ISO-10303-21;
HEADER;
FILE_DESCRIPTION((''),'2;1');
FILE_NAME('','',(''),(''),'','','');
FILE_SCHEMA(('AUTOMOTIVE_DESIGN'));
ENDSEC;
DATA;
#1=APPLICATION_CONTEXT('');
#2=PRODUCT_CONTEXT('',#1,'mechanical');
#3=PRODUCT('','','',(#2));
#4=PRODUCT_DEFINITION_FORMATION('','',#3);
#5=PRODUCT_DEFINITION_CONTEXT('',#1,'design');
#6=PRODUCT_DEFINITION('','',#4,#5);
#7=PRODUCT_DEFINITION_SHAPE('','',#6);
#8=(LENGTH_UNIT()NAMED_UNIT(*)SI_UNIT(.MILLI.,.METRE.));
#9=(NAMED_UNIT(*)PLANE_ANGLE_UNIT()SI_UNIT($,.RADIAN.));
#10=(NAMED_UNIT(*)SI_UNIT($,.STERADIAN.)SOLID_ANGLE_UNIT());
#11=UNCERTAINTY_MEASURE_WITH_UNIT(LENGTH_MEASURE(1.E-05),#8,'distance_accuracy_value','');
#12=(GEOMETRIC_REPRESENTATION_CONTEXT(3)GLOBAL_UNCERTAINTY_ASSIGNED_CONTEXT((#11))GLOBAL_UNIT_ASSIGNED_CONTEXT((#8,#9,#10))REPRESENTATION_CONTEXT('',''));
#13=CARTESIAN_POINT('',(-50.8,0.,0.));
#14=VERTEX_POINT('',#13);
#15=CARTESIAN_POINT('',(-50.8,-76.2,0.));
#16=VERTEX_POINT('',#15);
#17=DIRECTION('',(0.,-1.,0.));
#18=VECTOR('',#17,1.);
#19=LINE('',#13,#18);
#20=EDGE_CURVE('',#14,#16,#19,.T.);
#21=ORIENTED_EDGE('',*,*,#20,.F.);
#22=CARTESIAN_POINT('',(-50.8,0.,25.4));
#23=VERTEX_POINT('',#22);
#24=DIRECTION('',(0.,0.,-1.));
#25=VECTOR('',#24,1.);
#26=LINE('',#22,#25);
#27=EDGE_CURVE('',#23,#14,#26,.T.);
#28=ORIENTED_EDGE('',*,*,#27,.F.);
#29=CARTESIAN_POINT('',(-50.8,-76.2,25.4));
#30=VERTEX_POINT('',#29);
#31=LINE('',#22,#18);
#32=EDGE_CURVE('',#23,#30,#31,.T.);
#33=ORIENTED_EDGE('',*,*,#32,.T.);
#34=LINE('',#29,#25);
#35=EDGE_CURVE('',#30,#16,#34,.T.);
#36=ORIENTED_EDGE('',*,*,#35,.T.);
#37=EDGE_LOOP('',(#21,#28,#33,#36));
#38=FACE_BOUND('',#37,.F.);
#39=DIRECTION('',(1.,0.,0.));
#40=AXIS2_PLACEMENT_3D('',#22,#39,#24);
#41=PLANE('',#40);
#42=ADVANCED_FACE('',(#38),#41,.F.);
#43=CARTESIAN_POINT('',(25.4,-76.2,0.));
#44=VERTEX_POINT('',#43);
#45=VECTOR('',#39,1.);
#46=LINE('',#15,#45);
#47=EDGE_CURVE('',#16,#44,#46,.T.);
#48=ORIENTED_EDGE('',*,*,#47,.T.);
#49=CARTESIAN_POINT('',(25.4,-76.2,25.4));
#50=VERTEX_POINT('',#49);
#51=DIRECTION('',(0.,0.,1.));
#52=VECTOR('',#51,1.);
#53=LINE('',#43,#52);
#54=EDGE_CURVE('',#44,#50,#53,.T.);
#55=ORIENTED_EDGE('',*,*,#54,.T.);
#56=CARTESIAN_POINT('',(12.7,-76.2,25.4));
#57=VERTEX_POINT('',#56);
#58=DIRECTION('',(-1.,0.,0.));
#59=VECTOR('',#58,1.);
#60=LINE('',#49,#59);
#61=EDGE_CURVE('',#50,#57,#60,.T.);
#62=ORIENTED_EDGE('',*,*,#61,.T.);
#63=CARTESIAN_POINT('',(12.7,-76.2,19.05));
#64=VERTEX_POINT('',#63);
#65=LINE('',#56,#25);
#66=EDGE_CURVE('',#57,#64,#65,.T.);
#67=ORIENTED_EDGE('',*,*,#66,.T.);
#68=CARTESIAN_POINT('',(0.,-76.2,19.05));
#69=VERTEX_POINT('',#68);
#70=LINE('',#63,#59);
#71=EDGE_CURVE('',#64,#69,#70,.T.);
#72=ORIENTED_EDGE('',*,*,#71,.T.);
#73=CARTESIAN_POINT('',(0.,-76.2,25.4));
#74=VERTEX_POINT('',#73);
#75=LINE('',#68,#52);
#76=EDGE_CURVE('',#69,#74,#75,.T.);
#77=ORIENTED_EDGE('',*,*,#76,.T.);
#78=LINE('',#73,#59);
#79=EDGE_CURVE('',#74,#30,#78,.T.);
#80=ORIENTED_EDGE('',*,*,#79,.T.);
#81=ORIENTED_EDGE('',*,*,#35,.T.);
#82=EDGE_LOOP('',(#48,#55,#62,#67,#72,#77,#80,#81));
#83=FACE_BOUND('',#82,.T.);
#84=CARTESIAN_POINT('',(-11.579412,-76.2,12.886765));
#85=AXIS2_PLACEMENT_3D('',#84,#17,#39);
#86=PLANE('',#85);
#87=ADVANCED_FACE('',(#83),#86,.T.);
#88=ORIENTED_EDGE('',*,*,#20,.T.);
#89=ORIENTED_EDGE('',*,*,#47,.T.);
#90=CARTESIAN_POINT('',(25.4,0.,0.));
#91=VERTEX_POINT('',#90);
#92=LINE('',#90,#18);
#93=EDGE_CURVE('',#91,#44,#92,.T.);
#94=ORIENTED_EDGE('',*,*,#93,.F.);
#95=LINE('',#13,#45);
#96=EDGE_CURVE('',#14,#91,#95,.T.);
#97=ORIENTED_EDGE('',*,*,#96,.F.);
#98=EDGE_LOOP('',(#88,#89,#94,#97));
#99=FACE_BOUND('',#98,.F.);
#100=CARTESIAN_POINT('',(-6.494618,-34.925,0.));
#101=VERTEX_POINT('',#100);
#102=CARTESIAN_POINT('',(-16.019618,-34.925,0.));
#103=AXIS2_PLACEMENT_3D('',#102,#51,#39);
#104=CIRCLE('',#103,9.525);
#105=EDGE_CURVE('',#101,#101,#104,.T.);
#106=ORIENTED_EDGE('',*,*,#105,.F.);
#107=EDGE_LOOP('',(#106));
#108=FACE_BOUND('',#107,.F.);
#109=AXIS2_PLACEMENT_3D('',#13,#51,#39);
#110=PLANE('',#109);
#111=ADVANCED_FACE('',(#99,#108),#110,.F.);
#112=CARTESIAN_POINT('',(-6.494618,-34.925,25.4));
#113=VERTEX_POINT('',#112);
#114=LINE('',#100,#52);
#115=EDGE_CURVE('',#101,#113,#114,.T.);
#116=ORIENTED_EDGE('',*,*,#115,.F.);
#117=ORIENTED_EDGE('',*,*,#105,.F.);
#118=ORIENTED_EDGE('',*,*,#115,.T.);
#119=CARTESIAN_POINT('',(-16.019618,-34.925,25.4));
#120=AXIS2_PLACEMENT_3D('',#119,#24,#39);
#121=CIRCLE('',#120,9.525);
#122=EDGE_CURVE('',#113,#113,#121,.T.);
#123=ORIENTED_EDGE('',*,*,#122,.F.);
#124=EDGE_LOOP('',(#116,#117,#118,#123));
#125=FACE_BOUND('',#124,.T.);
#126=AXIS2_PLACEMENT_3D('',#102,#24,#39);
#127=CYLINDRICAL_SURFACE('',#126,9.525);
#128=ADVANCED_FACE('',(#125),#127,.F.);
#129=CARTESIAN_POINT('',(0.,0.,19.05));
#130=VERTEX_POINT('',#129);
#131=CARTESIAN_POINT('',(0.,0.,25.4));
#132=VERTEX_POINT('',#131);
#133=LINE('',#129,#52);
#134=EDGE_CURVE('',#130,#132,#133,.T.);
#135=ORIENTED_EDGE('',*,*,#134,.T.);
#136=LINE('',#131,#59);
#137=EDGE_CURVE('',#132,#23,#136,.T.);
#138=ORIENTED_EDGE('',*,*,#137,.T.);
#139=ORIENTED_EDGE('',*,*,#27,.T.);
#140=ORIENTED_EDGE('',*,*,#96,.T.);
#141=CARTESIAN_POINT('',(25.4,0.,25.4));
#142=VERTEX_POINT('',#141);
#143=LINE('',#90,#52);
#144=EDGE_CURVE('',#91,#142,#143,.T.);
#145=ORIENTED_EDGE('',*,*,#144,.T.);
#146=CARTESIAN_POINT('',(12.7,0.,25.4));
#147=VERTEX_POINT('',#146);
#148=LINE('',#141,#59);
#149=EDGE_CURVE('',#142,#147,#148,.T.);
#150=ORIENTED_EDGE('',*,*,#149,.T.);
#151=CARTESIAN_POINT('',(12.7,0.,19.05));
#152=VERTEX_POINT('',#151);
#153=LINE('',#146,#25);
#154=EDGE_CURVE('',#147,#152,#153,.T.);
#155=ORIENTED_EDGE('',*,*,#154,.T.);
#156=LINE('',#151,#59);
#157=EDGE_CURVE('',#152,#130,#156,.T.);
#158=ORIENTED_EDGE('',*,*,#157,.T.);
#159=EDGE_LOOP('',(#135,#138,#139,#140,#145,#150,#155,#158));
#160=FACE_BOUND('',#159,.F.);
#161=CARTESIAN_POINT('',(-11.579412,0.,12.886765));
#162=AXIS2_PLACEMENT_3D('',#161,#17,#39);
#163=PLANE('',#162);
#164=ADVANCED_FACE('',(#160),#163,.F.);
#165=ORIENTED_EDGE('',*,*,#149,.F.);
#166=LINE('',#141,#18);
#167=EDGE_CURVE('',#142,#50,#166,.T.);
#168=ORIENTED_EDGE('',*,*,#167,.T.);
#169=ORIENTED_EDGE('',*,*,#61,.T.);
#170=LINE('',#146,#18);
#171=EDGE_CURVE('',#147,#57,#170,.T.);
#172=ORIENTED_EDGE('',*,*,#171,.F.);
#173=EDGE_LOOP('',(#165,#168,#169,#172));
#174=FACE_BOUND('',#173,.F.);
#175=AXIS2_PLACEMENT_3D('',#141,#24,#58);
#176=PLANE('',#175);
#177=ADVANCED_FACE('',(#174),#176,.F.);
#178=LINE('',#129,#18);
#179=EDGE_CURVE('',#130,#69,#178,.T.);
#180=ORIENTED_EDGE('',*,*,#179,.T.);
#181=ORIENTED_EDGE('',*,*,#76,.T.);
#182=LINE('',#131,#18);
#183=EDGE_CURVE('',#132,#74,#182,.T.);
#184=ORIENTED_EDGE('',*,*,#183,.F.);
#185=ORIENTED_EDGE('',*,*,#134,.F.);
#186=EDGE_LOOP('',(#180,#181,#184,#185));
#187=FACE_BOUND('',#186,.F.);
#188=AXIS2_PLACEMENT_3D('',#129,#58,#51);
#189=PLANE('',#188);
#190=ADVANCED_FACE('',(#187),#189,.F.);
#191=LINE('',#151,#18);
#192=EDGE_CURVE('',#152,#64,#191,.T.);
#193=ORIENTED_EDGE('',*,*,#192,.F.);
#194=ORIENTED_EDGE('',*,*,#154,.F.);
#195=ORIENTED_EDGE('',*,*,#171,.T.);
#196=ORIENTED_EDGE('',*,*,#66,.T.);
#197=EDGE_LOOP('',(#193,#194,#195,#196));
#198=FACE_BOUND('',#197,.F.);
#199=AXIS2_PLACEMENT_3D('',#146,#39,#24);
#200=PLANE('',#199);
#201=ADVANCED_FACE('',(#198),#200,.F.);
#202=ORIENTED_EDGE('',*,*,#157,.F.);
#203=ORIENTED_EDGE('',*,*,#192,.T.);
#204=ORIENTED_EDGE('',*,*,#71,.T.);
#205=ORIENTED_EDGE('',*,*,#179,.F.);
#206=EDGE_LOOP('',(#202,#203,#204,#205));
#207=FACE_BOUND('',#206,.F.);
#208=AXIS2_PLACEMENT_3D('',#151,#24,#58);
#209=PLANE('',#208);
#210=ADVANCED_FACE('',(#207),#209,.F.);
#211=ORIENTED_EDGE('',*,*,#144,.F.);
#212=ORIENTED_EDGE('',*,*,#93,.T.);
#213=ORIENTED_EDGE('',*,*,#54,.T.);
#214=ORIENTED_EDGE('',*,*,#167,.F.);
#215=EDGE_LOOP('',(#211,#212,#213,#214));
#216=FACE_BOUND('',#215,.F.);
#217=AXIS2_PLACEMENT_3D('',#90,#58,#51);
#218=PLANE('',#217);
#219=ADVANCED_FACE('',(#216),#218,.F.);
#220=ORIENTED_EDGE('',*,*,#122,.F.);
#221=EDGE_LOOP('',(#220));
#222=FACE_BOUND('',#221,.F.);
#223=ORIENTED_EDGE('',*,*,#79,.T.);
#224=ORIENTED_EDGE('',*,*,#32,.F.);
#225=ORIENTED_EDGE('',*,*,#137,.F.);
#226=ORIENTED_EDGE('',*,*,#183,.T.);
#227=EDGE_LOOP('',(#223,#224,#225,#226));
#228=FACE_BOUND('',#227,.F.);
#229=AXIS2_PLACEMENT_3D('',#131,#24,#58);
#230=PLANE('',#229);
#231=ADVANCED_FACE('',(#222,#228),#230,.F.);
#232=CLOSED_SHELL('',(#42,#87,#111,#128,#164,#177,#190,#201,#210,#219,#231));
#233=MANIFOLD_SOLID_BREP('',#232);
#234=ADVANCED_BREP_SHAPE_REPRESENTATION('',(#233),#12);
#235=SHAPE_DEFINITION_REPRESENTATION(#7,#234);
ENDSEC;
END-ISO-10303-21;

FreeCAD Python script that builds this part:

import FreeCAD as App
import Part
import Sketcher
from FreeCAD import Vector
Q = App.Units.Quantity


def add_polygon(sketch, points):
    """Adds a closed chain of lines whose ends are joined by coincident constraints."""
    first, n = sketch.GeometryCount, len(points)
    for a, b in zip(points, points[1:] + points[:1]):
        sketch.addGeometry(Part.LineSegment(App.Vector(*a, 0), App.Vector(*b, 0)), False)
    for i in range(n):
        sketch.addConstraint(Sketcher.Constraint("Coincident", first + i, 2, first + (i + 1) % n, 1))

doc = App.newDocument("Part")
body = doc.addObject("PartDesign::Body", "Body")

# Sketch on XZ plane
sketch1 = body.newObject("Sketcher::SketchObject", "Sketch")
sketch1.AttachmentSupport = (doc.getObject("XZ_Plane"), [""])
sketch1.MapMode = "FlatFace"
add_polygon(sketch1, [(-51, 0), (25, 0), (25, 25), (13, 25), (13, 19), (0, 19), (0, 25), (-51, 25)])  # lines 0-7
sketch1.addConstraint([
    Sketcher.Constraint("Horizontal", 0),
    Sketcher.Constraint("Vertical", 1),
    Sketcher.Constraint("Horizontal", 2),
    Sketcher.Constraint("Vertical", 3),
    Sketcher.Constraint("Horizontal", 4),
    Sketcher.Constraint("Vertical", 5),
    Sketcher.Constraint("Horizontal", 6),
    Sketcher.Constraint("Vertical", 7),
    Sketcher.Constraint("PointOnObject", 0, 2, -1),
    Sketcher.Constraint("PointOnObject", 4, 2, -2),
    Sketcher.Constraint("Horizontal", 2, 2, 5, 2),
    Sketcher.Constraint("Equal", 2, 4),
    Sketcher.Constraint("DistanceX", 0, 1, 0, 2, Q("3 in")),
    Sketcher.Constraint("DistanceX", 6, 2, 6, 1, Q("2 in")),
    Sketcher.Constraint("DistanceY", 1, 1, 1, 2, Q("1 in")),
    Sketcher.Constraint("DistanceY", 3, 2, 3, 1, Q("0.25 in")),
])
pad1 = body.newObject("PartDesign::Pad", "Pad")
pad1.Profile = sketch1
pad1.Length = Q("3 in")

# Sketch on XY plane
sketch2 = body.newObject("Sketcher::SketchObject", "Sketch001")
sketch2.AttachmentSupport = (doc.getObject("XY_Plane"), [""])
sketch2.MapMode = "FlatFace"
sketch2.addGeometry(Part.Circle(Vector(-16, -35, 0), Vector(0, 0, 1), 10), False)
sketch2.addConstraint([
    Sketcher.Constraint("Diameter", 0, Q("0.75 in")),
    Sketcher.Constraint("DistanceY", 0, 3, -1, 1, Q("1.375 in")),
    Sketcher.Constraint("DistanceX", 0, 3, -1, 1, 16.019618),
])
pocket1 = body.newObject("PartDesign::Pocket", "Pocket")
pocket1.Profile = sketch2
pocket1.Length = Q("3 in")
pocket1.Reversed = True

doc.recompute()
